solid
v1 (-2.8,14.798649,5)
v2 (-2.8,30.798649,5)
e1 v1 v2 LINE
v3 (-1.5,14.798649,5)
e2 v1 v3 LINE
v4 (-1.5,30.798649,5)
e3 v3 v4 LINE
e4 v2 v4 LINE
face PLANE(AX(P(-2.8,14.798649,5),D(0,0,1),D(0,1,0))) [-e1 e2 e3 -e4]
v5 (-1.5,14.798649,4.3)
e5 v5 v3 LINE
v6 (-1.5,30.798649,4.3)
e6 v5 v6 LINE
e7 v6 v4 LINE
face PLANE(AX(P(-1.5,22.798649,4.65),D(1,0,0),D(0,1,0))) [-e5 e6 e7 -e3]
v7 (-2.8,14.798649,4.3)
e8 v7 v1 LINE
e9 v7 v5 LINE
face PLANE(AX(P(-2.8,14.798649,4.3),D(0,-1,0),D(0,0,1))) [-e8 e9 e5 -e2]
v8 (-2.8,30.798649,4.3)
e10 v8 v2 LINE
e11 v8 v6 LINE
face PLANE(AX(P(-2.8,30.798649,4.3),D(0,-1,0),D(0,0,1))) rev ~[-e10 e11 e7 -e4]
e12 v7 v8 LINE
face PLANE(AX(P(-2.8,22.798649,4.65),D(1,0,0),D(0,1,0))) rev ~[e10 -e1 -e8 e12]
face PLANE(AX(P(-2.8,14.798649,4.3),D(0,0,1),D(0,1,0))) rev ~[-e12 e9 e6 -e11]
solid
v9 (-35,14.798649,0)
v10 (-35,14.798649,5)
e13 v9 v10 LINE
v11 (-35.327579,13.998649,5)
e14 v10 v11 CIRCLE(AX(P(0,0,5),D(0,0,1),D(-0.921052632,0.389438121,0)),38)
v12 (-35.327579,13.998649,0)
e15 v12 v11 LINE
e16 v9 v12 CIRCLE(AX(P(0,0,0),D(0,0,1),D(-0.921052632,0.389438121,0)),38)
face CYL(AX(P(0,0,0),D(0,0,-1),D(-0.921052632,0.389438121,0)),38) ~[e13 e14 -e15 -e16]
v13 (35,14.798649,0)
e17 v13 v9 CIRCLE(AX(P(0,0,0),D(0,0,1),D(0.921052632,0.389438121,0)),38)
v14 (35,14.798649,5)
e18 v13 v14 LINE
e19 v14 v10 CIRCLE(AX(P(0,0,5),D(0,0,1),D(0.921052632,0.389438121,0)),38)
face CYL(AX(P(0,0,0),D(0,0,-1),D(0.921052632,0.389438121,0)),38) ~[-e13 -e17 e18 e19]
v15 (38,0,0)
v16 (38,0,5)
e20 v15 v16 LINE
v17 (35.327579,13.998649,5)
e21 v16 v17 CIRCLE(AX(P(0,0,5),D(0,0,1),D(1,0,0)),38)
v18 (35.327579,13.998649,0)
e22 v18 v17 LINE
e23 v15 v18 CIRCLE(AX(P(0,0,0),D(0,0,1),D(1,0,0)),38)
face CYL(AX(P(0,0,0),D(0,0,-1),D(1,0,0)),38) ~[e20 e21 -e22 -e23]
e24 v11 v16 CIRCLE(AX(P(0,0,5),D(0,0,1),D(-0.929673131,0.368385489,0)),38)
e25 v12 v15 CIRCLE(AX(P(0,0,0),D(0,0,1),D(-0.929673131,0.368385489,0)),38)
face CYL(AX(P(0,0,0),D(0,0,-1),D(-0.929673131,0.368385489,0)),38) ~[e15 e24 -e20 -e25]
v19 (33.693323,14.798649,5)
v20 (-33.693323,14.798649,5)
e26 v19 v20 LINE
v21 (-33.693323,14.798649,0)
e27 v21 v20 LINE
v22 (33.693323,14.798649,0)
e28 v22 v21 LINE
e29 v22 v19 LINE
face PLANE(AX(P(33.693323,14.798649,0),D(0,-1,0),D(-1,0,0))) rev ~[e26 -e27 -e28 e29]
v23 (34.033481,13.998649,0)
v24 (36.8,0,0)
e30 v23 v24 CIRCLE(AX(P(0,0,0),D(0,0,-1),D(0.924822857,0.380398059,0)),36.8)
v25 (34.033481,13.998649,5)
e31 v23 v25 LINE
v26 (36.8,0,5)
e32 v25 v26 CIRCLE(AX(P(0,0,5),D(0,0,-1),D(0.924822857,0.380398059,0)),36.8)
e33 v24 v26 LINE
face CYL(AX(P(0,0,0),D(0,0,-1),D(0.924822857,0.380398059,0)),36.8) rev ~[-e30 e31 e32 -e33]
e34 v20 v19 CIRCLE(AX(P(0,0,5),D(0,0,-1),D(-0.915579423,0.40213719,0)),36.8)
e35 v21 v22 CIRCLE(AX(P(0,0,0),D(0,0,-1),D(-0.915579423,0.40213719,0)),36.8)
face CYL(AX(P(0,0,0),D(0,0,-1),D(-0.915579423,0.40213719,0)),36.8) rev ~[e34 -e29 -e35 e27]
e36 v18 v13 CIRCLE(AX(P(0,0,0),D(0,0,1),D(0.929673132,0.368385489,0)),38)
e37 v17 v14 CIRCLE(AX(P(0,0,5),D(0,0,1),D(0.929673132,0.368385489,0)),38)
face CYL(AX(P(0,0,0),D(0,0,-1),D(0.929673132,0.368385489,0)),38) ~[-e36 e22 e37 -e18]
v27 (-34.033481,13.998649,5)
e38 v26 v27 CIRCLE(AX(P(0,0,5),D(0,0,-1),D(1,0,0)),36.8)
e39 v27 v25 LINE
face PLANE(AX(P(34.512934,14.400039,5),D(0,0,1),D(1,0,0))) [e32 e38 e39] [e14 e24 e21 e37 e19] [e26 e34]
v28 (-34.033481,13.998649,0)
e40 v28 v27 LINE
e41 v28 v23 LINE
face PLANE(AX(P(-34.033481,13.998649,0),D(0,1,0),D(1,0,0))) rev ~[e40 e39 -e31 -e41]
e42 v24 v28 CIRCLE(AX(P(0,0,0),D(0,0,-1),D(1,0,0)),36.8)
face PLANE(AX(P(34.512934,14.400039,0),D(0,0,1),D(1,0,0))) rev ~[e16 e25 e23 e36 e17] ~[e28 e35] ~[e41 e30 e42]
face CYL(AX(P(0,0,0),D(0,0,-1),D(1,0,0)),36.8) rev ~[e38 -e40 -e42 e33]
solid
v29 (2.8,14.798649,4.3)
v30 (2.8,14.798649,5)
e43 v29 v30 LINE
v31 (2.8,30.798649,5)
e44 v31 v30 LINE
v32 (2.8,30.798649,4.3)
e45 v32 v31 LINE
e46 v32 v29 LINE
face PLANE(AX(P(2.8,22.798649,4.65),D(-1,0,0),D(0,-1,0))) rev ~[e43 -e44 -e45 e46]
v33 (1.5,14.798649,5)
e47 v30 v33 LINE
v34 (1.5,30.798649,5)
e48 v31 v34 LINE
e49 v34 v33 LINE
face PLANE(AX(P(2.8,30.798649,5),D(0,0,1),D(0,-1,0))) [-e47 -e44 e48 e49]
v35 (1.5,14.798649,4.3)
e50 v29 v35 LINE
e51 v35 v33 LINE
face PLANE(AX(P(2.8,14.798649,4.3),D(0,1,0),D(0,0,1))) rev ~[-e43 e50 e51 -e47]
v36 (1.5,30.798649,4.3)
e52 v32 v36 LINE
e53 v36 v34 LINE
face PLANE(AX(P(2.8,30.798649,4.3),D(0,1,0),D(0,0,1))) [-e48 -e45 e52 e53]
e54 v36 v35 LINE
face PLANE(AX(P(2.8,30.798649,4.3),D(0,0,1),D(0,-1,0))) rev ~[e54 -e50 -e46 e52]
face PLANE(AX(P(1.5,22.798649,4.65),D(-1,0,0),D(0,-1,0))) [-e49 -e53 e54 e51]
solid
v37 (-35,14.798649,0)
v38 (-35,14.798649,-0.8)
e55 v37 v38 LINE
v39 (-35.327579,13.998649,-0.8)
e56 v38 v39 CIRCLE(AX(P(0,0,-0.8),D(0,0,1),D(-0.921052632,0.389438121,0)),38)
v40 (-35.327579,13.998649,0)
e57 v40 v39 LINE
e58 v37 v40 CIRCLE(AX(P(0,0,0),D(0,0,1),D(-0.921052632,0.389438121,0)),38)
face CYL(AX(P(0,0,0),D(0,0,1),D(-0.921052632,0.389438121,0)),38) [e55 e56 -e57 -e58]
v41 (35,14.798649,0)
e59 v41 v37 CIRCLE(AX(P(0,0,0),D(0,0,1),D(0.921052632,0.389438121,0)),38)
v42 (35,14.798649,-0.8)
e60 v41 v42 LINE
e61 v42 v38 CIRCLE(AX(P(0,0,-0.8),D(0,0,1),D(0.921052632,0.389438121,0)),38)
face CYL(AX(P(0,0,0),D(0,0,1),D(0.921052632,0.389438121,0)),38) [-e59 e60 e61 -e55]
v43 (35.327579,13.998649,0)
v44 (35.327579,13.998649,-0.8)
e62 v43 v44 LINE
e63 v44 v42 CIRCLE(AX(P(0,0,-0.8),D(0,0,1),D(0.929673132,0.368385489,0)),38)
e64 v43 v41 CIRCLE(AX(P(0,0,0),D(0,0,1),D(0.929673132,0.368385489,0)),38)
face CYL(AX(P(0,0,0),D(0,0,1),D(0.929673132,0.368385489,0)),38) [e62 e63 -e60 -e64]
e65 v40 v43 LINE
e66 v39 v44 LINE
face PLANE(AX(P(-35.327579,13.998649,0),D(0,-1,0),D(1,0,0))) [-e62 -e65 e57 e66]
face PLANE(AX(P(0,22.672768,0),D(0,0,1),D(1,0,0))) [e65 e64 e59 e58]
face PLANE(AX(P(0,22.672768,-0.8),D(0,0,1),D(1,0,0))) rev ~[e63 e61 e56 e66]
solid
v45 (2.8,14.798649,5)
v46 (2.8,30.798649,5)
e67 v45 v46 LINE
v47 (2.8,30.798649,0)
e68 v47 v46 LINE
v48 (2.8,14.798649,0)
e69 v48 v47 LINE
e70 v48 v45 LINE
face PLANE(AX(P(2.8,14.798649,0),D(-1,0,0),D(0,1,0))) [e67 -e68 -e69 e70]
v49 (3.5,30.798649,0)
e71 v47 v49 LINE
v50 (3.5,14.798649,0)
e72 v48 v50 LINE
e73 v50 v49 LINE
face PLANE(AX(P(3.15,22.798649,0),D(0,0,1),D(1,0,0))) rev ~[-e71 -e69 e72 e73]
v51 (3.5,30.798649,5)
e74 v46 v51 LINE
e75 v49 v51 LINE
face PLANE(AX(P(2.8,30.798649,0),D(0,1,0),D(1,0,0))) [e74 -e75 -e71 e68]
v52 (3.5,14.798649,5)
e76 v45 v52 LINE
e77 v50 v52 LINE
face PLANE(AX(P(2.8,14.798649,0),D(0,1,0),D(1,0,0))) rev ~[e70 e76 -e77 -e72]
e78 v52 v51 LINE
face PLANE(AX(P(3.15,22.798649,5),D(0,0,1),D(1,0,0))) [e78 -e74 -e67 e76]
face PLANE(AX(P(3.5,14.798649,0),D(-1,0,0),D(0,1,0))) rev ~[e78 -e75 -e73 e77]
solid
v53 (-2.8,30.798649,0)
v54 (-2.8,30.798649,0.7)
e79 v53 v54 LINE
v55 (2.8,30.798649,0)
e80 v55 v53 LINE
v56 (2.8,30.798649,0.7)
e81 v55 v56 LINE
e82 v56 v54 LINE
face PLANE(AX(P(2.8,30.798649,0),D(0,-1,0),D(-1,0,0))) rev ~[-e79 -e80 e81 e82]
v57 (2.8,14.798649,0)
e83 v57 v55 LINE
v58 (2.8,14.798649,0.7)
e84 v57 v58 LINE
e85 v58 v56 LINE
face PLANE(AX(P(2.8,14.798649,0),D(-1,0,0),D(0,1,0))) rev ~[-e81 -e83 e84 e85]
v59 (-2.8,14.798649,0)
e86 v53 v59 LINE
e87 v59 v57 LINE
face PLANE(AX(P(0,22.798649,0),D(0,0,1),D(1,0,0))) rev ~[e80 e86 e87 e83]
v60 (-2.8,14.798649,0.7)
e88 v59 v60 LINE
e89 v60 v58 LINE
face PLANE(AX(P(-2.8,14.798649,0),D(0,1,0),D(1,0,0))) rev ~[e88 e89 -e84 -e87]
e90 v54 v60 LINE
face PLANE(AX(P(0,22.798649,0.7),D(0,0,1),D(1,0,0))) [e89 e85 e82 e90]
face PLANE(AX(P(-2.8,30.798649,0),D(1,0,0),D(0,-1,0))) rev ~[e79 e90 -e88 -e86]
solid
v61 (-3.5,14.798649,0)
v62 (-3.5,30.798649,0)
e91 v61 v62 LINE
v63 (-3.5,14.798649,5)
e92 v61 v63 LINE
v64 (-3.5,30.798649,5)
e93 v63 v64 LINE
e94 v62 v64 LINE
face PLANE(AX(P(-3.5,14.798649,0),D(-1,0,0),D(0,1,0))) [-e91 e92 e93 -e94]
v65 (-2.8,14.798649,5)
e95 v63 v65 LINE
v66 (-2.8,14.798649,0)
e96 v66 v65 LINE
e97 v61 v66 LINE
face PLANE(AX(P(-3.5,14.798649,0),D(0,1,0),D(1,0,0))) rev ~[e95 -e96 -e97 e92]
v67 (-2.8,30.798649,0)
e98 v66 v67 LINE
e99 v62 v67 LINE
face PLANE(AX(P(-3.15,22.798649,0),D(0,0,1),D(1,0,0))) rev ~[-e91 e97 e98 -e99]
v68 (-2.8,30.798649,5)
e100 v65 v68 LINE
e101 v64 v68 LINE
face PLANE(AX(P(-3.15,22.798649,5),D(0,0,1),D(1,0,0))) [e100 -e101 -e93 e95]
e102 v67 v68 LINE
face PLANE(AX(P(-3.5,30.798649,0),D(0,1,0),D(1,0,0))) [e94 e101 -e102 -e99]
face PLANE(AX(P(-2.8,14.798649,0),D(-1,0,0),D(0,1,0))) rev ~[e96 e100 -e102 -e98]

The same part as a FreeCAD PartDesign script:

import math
import FreeCAD as App
import Part
import Sketcher
from FreeCAD import Vector

doc = App.newDocument("Part")
params = doc.addObject("Spreadsheet::Sheet", "Params")
for row, (alias, value) in enumerate([
    ("sketch1_radius", "38 mm"),
    ("sketch1_radius2", "36.8 mm"),
    ("pad1_length", "5 mm"),
    ("sketch2_radius", "38 mm"),
    ("pad2_length", "0.8 mm"),
    ("sketch3_height", "16 mm"),
    ("sketch3_width", "5.6 mm"),
    ("pad3_length", "0.7 mm"),
    ("sketch4_height", "16 mm"),
    ("sketch4_width", "0.7 mm"),
    ("pad4_length", "5 mm"),
    ("sketch5_height", "16 mm"),
    ("sketch5_width", "0.7 mm"),
    ("pad5_length", "5 mm"),
    ("sketch6_width", "16 mm"),
    ("sketch6_height", "0.7 mm"),
    ("pad6_length", "1.3 mm"),
    ("sketch7_width", "16 mm"),
    ("sketch7_height", "0.7 mm"),
    ("pad7_length", "1.3 mm"),
], start=1):
    params.set(f"A{row}", alias)
    params.set(f"B{row}", "=" + value)
    params.setAlias(f"B{row}", alias)

body = doc.addObject("PartDesign::Body", "Body")

sketch1 = body.newObject("Sketcher::SketchObject", "Sketch")
sketch1.AttachmentSupport = (doc.getObject("XY_Plane"), [""])
sketch1.MapMode = "FlatFace"
sketch1.addGeometry([
    Part.ArcOfCircle(Part.Circle(Vector(0, 0, 0), Vector(0, 0, 1), 38), math.radians(158), math.radians(360)),
    Part.ArcOfCircle(Part.Circle(Vector(0, 0, 0), Vector(0, 0, 1), 38), math.radians(0), math.radians(22)),
    Part.ArcOfCircle(Part.Circle(Vector(0, 0, 0), Vector(0, 0, 1), 38), math.radians(21.62), math.radians(22.92)),
    Part.ArcOfCircle(Part.Circle(Vector(0, 0, 0), Vector(0, 0, 1), 38), math.radians(23), math.radians(157)),
    Part.ArcOfCircle(Part.Circle(Vector(0, 0, 0), Vector(0, 0, 1), 38), math.radians(157.08), math.radians(158.38)),
    Part.ArcOfCircle(Part.Circle(Vector(0, 0, 0), Vector(0, 0, 1), 36.8), math.radians(158), math.radians(360)),
    Part.LineSegment(Vector(-34, 14, 0), Vector(34, 14, 0)),
    Part.ArcOfCircle(Part.Circle(Vector(0, 0, 0), Vector(0, 0, 1), 36.8), math.radians(0), math.radians(22)),
    Part.LineSegment(Vector(33.7, 14.8, 0), Vector(-33.7, 14.8, 0)),
    Part.ArcOfCircle(Part.Circle(Vector(0, 0, 0), Vector(0, 0, 1), 36.8), math.radians(24), math.radians(156)),
], False)
sketch1.addConstraint([
    Sketcher.Constraint("Tangent", 0, 2, 1, 1),
    Sketcher.Constraint("Tangent", 1, 2, 2, 1),
    Sketcher.Constraint("Tangent", 2, 2, 3, 1),
    Sketcher.Constraint("Tangent", 3, 2, 4, 1),
    Sketcher.Constraint("Tangent", 4, 2, 0, 1),
    Sketcher.Constraint("Coincident", 5, 1, 6, 1),
    Sketcher.Constraint("Coincident", 6, 2, 7, 2),
    Sketcher.Constraint("Tangent", 7, 1, 5, 2),
    Sketcher.Constraint("Coincident", 8, 1, 9, 1),
    Sketcher.Constraint("Coincident", 9, 2, 8, 2),
    Sketcher.Constraint("Horizontal", 6),
    Sketcher.Constraint("Horizontal", 8),
    Sketcher.Constraint("Coincident", 0, 3, -1, 1),
    Sketcher.Constraint("Coincident", 2, 3, -1, 1),
    Sketcher.Constraint("Coincident", 5, 3, -1, 1),
    Sketcher.Constraint("Coincident", 9, 3, -1, 1),
    Sketcher.Constraint("Equal", 5, 7),
    Sketcher.Constraint("Equal", 7, 9),
    Sketcher.Constraint("PointOnObject", 0, 2, -1),
    Sketcher.Constraint("PointOnObject", 7, 1, -1),
    Sketcher.Constraint("Horizontal", 2, 2, 3, 2),
    Sketcher.Constraint("Horizontal", 1, 2, 4, 2),
    Sketcher.Constraint("Horizontal", 4, 2, 5, 1),
    Sketcher.Constraint("Horizontal", 3, 2, 8, 1),
    Sketcher.Constraint("Radius", 0, 38.0),
    Sketcher.Constraint("Radius", 5, 36.8),
    Sketcher.Constraint("DistanceX", -1, 1, 2, 2, 35.0),
    Sketcher.Constraint("DistanceY", 1, 2, 2, 2, 0.8),
])
sketch1.setExpression("Constraints[24]", "Params.sketch1_radius")
sketch1.setExpression("Constraints[25]", "Params.sketch1_radius2")
pad1 = body.newObject("PartDesign::Pad", "Pad")
pad1.Profile = sketch1
pad1.setExpression("Length", "Params.pad1_length")
body2 = doc.addObject("PartDesign::Body", "Body001")

sketch2 = body2.newObject("Sketcher::SketchObject", "Sketch001")
sketch2.AttachmentSupport = (doc.getObject("XY_Plane001"), [""])
sketch2.MapMode = "FlatFace"
sketch2.addGeometry([
    Part.ArcOfCircle(Part.Circle(Vector(0, 0, 0), Vector(0, 0, 1), 38), math.radians(23), math.radians(157)),
    Part.ArcOfCircle(Part.Circle(Vector(0, 0, 0), Vector(0, 0, 1), 38), math.radians(157.08), math.radians(158.38)),
    Part.LineSegment(Vector(-35.3, 14, 0), Vector(35.3, 14, 0)),
    Part.ArcOfCircle(Part.Circle(Vector(0, 0, 0), Vector(0, 0, 1), 38), math.radians(21.62), math.radians(22.92)),
], False)
sketch2.addConstraint([
    Sketcher.Constraint("Tangent", 0, 2, 1, 1),
    Sketcher.Constraint("Coincident", 1, 2, 2, 1),
    Sketcher.Constraint("Coincident", 2, 2, 3, 1),
    Sketcher.Constraint("Tangent", 3, 2, 0, 1),
    Sketcher.Constraint("Horizontal", 2),
    Sketcher.Constraint("Coincident", 0, 3, -1, 1),
    Sketcher.Constraint("Equal", 0, 1),
    Sketcher.Constraint("Equal", 1, 3),
    Sketcher.Constraint("Horizontal", 0, 2, 3, 2),
    Sketcher.Constraint("Radius", 0, 38.0),
    Sketcher.Constraint("DistanceX", 0, 2, -1, 1, 35.0),
    Sketcher.Constraint("DistanceY", 1, 2, 0, 2, 0.8),
])
sketch2.setExpression("Constraints[9]", "Params.sketch2_radius")
pad2 = body2.newObject("PartDesign::Pad", "Pad001")
pad2.Profile = sketch2
pad2.setExpression("Length", "Params.pad2_length")
pad2.Reversed = True
body3 = doc.addObject("PartDesign::Body", "Body002")

sketch3 = body3.newObject("Sketcher::SketchObject", "Sketch002")
sketch3.AttachmentSupport = (doc.getObject("XY_Plane002"), [""])
sketch3.MapMode = "FlatFace"
sketch3.addGeometry([
    Part.LineSegment(Vector(3, 15, 0), Vector(3, 31, 0)),
    Part.LineSegment(Vector(3, 31, 0), Vector(-3, 31, 0)),
    Part.LineSegment(Vector(-3, 31, 0), Vector(-3, 15, 0)),
    Part.LineSegment(Vector(-3, 15, 0), Vector(3, 15, 0)),
], False)
sketch3.addConstraint([
    Sketcher.Constraint("Coincident", 0, 2, 1, 1),
    Sketcher.Constraint("Coincident", 1, 2, 2, 1),
    Sketcher.Constraint("Coincident", 2, 2, 3, 1),
    Sketcher.Constraint("Coincident", 3, 2, 0, 1),
    Sketcher.Constraint("Vertical", 0),
    Sketcher.Constraint("Horizontal", 1),
    Sketcher.Constraint("Vertical", 2),
    Sketcher.Constraint("Horizontal", 3),
    Sketcher.Constraint("DistanceY", 0, 1, 0, 2, 16.0),
    Sketcher.Constraint("DistanceX", 1, 2, 1, 1, 5.6),
    Sketcher.Constraint("DistanceX", -1, 1, 0, 2, 2.8),
    Sketcher.Constraint("DistanceY", -1, 1, 0, 2, 30.798649),
])
sketch3.setExpression("Constraints[8]", "Params.sketch3_height")
sketch3.setExpression("Constraints[9]", "Params.sketch3_width")
pad3 = body3.newObject("PartDesign::Pad", "Pad002")
pad3.Profile = sketch3
pad3.setExpression("Length", "Params.pad3_length")
body4 = doc.addObject("PartDesign::Body", "Body003")

sketch4 = body4.newObject("Sketcher::SketchObject", "Sketch003")
sketch4.AttachmentSupport = (doc.getObject("XY_Plane003"), [""])
sketch4.MapMode = "FlatFace"
sketch4.addGeometry([
    Part.LineSegment(Vector(-3.5, 30.8, 0), Vector(-3.5, 14.8, 0)),
    Part.LineSegment(Vector(-3.5, 14.8, 0), Vector(-2.8, 14.8, 0)),
    Part.LineSegment(Vector(-2.8, 14.8, 0), Vector(-2.8, 30.8, 0)),
    Part.LineSegment(Vector(-2.8, 30.8, 0), Vector(-3.5, 30.8, 0)),
], False)
sketch4.addConstraint([
    Sketcher.Constraint("Coincident", 0, 2, 1, 1),
    Sketcher.Constraint("Coincident", 1, 2, 2, 1),
    Sketcher.Constraint("Coincident", 2, 2, 3, 1),
    Sketcher.Constraint("Coincident", 3, 2, 0, 1),
    Sketcher.Constraint("Vertical", 0),
    Sketcher.Constraint("Horizontal", 1),
    Sketcher.Constraint("Vertical", 2),
    Sketcher.Constraint("Horizontal", 3),
    Sketcher.Constraint("DistanceY", 0, 2, 0, 1, 16.0),
    Sketcher.Constraint("DistanceX", 1, 1, 1, 2, 0.7),
    Sketcher.Constraint("DistanceX", 0, 2, -1, 1, 3.5),
    Sketcher.Constraint("DistanceY", -1, 1, 0, 2, 14.798649),
])
sketch4.setExpression("Constraints[8]", "Params.sketch4_height")
sketch4.setExpression("Constraints[9]", "Params.sketch4_width")
pad4 = body4.newObject("PartDesign::Pad", "Pad003")
pad4.Profile = sketch4
pad4.setExpression("Length", "Params.pad4_length")
body5 = doc.addObject("PartDesign::Body", "Body004")

sketch5 = body5.newObject("Sketcher::SketchObject", "Sketch004")
sketch5.AttachmentSupport = (doc.getObject("XY_Plane004"), [""])
sketch5.MapMode = "FlatFace"
sketch5.addGeometry([
    Part.LineSegment(Vector(2.8, 30.8, 0), Vector(2.8, 14.8, 0)),
    Part.LineSegment(Vector(2.8, 14.8, 0), Vector(3.5, 14.8, 0)),
    Part.LineSegment(Vector(3.5, 14.8, 0), Vector(3.5, 30.8, 0)),
    Part.LineSegment(Vector(3.5, 30.8, 0), Vector(2.8, 30.8, 0)),
], False)
sketch5.addConstraint([
    Sketcher.Constraint("Coincident", 0, 2, 1, 1),
    Sketcher.Constraint("Coincident", 1, 2, 2, 1),
    Sketcher.Constraint("Coincident", 2, 2, 3, 1),
    Sketcher.Constraint("Coincident", 3, 2, 0, 1),
    Sketcher.Constraint("Vertical", 0),
    Sketcher.Constraint("Horizontal", 1),
    Sketcher.Constraint("Vertical", 2),
    Sketcher.Constraint("Horizontal", 3),
    Sketcher.Constraint("DistanceY", 0, 2, 0, 1, 16.0),
    Sketcher.Constraint("DistanceX", 1, 1, 1, 2, 0.7),
    Sketcher.Constraint("DistanceX", -1, 1, 0, 2, 2.8),
    Sketcher.Constraint("DistanceY", -1, 1, 0, 2, 14.798649),
])
sketch5.setExpression("Constraints[8]", "Params.sketch5_height")
sketch5.setExpression("Constraints[9]", "Params.sketch5_width")
pad5 = body5.newObject("PartDesign::Pad", "Pad004")
pad5.Profile = sketch5
pad5.setExpression("Length", "Params.pad5_length")
body6 = doc.addObject("PartDesign::Body", "Body005")

sketch6 = body6.newObject("Sketcher::SketchObject", "Sketch005")
sketch6.AttachmentSupport = (doc.getObject("YZ_Plane005"), [""])
sketch6.MapMode = "FlatFace"
sketch6.AttachmentOffset = App.Placement(Vector(0, 0, 2.8), App.Rotation())
sketch6.addGeometry([
    Part.LineSegment(Vector(30.8, 5, 0), Vector(30.8, 4.3, 0)),
    Part.LineSegment(Vector(30.8, 4.3, 0), Vector(14.8, 4.3, 0)),
    Part.LineSegment(Vector(14.8, 4.3, 0), Vector(14.8, 5, 0)),
    Part.LineSegment(Vector(14.8, 5, 0), Vector(30.8, 5, 0)),
], False)
sketch6.addConstraint([
    Sketcher.Constraint("Coincident", 0, 2, 1, 1),
    Sketcher.Constraint("Coincident", 1, 2, 2, 1),
    Sketcher.Constraint("Coincident", 2, 2, 3, 1),
    Sketcher.Constraint("Coincident", 3, 2, 0, 1),
    Sketcher.Constraint("Vertical", 0),
    Sketcher.Constraint("Horizontal", 1),
    Sketcher.Constraint("Vertical", 2),
    Sketcher.Constraint("Horizontal", 3),
    Sketcher.Constraint("DistanceX", 1, 2, 1, 1, 16.0),
    Sketcher.Constraint("DistanceY", 0, 2, 0, 1, 0.7),
    Sketcher.Constraint("DistanceY", -1, 1, 2, 2, 5.0),
    Sketcher.Constraint("DistanceX", -1, 1, 0, 2, 30.798649),
])
sketch6.setExpression("Constraints[8]", "Params.sketch6_width")
sketch6.setExpression("Constraints[9]", "Params.sketch6_height")
pad6 = body6.newObject("PartDesign::Pad", "Pad005")
pad6.Profile = sketch6
pad6.setExpression("Length", "Params.pad6_length")
pad6.Reversed = True
body7 = doc.addObject("PartDesign::Body", "Body006")

sketch7 = body7.newObject("Sketcher::SketchObject", "Sketch006")
sketch7.AttachmentSupport = (doc.getObject("YZ_Plane006"), [""])
sketch7.MapMode = "FlatFace"
sketch7.AttachmentOffset = App.Placement(Vector(0, 0, -2.8), App.Rotation())
sketch7.addGeometry([
    Part.LineSegment(Vector(14.8, 5, 0), Vector(14.8, 4.3, 0)),
    Part.LineSegment(Vector(14.8, 4.3, 0), Vector(30.8, 4.3, 0)),
    Part.LineSegment(Vector(30.8, 4.3, 0), Vector(30.8, 5, 0)),
    Part.LineSegment(Vector(30.8, 5, 0), Vector(14.8, 5, 0)),
], False)
sketch7.addConstraint([
    Sketcher.Constraint("Coincident", 0, 2, 1, 1),
    Sketcher.Constraint("Coincident", 1, 2, 2, 1),
    Sketcher.Constraint("Coincident", 2, 2, 3, 1),
    Sketcher.Constraint("Coincident", 3, 2, 0, 1),
    Sketcher.Constraint("Vertical", 0),
    Sketcher.Constraint("Horizontal", 1),
    Sketcher.Constraint("Vertical", 2),
    Sketcher.Constraint("Horizontal", 3),
    Sketcher.Constraint("DistanceX", 1, 1, 1, 2, 16.0),
    Sketcher.Constraint("DistanceY", 0, 2, 0, 1, 0.7),
    Sketcher.Constraint("DistanceY", -1, 1, 2, 2, 5.0),
    Sketcher.Constraint("DistanceX", -1, 1, 0, 2, 14.798649),
])
sketch7.setExpression("Constraints[8]", "Params.sketch7_width")
sketch7.setExpression("Constraints[9]", "Params.sketch7_height")
pad7 = body7.newObject("PartDesign::Pad", "Pad006")
pad7.Profile = sketch7
pad7.setExpression("Length", "Params.pad7_length")

doc.recompute()
